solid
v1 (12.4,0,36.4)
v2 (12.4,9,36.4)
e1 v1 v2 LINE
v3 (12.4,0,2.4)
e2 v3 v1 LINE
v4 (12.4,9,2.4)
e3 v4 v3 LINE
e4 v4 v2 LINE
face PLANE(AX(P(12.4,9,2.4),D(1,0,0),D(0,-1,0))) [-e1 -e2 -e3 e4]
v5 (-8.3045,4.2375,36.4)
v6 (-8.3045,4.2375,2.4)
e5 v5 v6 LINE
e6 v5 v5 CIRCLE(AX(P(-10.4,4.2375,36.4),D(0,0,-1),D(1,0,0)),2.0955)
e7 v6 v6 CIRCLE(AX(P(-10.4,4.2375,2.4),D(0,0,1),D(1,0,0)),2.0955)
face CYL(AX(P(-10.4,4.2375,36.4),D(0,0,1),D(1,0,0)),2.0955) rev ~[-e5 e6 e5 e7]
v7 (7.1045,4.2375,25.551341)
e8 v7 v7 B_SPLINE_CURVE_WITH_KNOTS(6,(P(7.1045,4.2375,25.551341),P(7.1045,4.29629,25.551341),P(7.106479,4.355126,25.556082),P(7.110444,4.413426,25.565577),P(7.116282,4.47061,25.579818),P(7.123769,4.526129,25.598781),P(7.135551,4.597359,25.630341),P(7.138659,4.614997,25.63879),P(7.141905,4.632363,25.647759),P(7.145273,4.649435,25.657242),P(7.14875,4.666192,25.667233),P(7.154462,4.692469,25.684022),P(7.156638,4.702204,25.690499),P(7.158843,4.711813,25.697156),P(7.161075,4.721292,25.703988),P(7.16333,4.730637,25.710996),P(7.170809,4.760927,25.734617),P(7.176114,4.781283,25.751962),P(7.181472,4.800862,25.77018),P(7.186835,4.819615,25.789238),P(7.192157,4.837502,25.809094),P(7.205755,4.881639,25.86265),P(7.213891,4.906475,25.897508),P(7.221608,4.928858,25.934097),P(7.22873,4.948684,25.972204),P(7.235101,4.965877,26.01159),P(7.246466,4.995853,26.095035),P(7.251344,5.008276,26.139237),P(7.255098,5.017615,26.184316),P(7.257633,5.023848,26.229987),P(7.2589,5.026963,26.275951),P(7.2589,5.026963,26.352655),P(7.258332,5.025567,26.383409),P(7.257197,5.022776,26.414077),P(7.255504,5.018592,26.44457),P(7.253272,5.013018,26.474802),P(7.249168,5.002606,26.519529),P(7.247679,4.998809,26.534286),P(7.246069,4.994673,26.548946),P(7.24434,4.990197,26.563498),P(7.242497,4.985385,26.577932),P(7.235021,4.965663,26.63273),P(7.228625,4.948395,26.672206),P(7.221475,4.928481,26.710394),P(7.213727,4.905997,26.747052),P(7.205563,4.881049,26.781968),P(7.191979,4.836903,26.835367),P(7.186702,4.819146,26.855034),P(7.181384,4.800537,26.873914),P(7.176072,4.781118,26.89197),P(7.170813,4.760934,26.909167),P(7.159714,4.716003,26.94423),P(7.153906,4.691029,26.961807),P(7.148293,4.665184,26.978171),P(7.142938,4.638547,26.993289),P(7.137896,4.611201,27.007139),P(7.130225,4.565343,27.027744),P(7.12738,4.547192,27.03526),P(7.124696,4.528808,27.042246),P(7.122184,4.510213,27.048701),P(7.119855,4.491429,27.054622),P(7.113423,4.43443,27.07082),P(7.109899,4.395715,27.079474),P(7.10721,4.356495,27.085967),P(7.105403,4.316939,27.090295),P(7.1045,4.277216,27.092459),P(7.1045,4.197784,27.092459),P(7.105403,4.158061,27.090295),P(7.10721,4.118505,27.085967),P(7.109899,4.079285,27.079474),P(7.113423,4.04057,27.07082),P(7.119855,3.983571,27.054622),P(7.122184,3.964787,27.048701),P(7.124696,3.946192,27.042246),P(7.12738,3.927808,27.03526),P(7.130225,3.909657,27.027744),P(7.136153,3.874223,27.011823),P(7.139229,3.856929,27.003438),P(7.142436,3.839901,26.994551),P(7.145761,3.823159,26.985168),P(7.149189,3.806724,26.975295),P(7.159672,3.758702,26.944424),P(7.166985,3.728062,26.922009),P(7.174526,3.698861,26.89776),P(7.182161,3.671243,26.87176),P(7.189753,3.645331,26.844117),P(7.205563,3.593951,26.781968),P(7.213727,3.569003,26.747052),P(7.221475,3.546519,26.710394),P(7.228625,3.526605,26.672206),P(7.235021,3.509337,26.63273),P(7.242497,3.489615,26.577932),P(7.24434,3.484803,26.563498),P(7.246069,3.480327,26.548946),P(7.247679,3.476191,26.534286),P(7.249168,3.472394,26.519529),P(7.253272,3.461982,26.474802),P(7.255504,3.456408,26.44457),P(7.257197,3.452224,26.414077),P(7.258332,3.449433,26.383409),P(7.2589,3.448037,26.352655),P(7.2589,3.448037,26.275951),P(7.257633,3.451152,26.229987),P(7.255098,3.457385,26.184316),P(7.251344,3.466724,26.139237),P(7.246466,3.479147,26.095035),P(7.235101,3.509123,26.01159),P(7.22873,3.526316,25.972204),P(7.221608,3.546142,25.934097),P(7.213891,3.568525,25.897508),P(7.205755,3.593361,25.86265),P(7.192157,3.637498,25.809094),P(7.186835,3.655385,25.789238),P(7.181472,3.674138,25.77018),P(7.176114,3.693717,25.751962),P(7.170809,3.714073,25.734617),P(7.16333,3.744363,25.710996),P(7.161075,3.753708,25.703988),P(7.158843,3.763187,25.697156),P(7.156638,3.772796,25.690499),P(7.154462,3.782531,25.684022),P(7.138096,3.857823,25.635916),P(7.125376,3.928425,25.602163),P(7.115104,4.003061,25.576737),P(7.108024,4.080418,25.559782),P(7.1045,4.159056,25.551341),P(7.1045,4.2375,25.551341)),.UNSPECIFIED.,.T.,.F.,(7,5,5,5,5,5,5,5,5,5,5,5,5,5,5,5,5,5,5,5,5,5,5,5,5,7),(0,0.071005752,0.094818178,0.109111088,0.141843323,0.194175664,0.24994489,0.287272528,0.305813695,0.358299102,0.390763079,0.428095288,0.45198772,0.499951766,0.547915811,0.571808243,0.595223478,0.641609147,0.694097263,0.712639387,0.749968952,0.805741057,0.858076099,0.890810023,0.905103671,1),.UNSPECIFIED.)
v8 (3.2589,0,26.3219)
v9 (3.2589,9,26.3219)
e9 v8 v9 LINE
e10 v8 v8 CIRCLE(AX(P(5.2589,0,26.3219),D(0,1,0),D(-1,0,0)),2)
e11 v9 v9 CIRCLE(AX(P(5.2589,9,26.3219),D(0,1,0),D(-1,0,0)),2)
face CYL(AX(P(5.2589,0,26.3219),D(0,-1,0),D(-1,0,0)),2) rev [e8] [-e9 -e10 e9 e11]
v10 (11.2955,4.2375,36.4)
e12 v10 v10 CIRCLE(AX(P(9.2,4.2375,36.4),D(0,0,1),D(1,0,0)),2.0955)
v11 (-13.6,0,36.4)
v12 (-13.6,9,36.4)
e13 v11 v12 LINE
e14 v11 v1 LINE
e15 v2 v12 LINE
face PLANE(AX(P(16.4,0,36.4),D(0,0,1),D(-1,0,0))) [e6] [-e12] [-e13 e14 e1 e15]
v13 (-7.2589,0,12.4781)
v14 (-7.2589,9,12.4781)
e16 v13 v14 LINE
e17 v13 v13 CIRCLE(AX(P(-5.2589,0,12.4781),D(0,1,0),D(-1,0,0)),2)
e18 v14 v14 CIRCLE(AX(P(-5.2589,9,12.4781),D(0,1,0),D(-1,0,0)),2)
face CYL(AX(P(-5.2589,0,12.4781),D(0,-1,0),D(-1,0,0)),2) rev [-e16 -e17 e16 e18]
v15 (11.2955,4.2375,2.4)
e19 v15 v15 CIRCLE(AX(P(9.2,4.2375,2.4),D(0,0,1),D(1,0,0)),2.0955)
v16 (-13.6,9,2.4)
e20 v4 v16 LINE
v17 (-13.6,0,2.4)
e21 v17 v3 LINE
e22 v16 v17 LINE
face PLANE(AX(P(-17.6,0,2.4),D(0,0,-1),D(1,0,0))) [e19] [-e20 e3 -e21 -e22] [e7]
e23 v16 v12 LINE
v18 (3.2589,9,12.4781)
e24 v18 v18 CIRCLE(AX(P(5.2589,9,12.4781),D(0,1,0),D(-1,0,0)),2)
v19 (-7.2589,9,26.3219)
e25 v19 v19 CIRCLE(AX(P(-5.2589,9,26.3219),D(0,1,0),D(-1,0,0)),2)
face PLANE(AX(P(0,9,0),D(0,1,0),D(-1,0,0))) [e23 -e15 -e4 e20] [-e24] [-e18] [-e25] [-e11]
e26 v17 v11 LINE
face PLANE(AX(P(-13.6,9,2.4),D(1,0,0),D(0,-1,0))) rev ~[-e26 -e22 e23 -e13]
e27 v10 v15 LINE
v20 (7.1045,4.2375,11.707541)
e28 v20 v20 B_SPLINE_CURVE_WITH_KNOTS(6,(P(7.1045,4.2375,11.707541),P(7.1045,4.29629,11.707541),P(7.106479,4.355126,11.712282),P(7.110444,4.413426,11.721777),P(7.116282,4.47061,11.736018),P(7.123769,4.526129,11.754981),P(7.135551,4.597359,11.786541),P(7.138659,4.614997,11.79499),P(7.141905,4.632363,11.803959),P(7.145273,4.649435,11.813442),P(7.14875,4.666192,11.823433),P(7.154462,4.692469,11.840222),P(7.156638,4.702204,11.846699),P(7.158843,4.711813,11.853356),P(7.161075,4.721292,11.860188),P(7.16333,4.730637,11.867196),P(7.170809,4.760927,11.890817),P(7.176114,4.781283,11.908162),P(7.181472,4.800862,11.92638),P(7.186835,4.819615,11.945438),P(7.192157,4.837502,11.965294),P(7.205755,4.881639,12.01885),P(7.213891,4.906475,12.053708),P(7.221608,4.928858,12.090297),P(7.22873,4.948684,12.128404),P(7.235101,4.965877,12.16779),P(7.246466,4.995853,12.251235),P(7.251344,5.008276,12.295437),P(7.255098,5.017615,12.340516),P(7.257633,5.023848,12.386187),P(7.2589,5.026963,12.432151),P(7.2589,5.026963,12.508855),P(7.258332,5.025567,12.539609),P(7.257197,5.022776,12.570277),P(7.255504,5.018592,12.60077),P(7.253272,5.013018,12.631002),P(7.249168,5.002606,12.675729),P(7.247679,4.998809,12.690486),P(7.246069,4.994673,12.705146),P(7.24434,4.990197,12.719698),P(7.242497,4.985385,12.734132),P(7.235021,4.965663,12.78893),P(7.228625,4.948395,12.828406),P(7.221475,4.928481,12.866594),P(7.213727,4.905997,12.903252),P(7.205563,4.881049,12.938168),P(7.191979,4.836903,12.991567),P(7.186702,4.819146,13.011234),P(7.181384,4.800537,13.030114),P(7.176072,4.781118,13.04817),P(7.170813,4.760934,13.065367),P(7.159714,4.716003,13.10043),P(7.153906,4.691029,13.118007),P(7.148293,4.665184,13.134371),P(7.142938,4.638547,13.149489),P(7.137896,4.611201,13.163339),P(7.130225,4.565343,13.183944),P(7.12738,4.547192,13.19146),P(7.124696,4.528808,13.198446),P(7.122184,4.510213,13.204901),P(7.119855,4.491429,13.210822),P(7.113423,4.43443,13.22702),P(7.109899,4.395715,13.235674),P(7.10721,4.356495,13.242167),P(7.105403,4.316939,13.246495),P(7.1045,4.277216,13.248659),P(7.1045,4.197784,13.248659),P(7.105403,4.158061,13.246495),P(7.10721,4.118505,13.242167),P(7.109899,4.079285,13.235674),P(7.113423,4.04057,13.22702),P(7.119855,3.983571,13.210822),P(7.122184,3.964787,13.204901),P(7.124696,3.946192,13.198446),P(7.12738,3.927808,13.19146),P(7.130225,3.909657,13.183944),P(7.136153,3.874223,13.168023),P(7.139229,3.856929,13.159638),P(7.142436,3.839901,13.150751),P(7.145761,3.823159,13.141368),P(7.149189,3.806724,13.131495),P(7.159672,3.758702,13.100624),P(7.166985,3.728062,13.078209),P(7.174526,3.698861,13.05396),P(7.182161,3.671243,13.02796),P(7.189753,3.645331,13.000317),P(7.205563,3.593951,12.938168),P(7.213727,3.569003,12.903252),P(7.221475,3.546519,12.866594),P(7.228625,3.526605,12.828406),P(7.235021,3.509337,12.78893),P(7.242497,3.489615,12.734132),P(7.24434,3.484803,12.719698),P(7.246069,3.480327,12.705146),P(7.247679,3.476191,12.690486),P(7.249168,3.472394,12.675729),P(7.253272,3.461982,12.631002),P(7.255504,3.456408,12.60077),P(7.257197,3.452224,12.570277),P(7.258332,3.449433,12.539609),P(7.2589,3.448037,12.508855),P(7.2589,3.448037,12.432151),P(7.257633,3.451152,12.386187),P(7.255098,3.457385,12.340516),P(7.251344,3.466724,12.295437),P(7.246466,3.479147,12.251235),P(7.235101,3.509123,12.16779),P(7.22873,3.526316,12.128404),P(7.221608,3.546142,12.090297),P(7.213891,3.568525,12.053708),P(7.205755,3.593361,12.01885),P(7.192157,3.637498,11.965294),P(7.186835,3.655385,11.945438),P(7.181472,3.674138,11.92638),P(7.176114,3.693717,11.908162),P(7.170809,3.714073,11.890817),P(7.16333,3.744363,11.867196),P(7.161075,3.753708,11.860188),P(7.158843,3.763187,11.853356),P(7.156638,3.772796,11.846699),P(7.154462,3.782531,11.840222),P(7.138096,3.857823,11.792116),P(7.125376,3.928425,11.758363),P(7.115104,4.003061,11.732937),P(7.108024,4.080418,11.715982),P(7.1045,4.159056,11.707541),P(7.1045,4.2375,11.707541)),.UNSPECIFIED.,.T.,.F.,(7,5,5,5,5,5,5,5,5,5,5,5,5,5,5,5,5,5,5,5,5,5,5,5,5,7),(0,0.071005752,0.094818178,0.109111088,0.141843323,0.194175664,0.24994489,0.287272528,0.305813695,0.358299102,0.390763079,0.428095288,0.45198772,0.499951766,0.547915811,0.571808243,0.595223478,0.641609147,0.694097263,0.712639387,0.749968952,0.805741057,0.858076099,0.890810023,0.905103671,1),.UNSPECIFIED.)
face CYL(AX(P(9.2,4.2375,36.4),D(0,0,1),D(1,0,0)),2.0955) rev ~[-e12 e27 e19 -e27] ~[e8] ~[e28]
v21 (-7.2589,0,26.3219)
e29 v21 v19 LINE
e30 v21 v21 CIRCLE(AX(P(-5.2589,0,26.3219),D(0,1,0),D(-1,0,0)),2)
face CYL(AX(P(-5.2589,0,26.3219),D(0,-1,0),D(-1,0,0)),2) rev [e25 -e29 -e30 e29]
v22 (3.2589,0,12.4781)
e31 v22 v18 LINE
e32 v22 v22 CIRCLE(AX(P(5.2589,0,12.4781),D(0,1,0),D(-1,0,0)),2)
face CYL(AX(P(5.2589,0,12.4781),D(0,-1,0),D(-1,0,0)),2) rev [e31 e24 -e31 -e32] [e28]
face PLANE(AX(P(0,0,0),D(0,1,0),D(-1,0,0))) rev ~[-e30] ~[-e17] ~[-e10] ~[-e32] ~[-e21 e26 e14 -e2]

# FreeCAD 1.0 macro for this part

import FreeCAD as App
import Part
import Sketcher
from FreeCAD import Vector
Q = App.Units.Quantity


def add_polygon(sketch, points):
    """Adds a closed chain of lines whose ends are joined by coincident constraints."""
    first, n = sketch.GeometryCount, len(points)
    for a, b in zip(points, points[1:] + points[:1]):
        sketch.addGeometry(Part.LineSegment(App.Vector(*a, 0), App.Vector(*b, 0)), False)
    for i in range(n):
        sketch.addConstraint(Sketcher.Constraint("Coincident", first + i, 2, first + (i + 1) % n, 1))

doc = App.newDocument("Part")
params = doc.addObject("Spreadsheet::Sheet", "Params")
for row, (alias, value) in enumerate([
    ("sketch1_diameter", "4 mm"),
    ("sketch1_width", "34 mm"),
    ("pad1_length", "9 mm"),
    ("sketch4_width", "4 mm"),
    ("sketch4_height", "9 mm"),
    ("sketch5_width", "4 mm"),
    ("sketch5_height", "9 mm"),
], start=1):
    params.set(f"A{row}", alias)
    params.set(f"B{row}", "=" + value)
    params.setAlias(f"B{row}", alias)

body = doc.addObject("PartDesign::Body", "Body")

sketch1 = doc.addObject("Sketcher::SketchObject", "Sketch")
body.addObject(sketch1)
sketch1.AttachmentSupport = (doc.XZ_Plane, [""])
sketch1.MapMode = "FlatFace"
add_polygon(sketch1, [(-17.6, 36.4), (16.4, 36.4), (16.4, 2.4), (-17.6, 2.4)])
sketch1.addGeometry(Part.Circle(Vector(5.3, 12.5, 0), Vector(0, 0, 1), 2), False)
sketch1.addGeometry(Part.Circle(Vector(-5.3, 12.5, 0), Vector(0, 0, 1), 2), False)
sketch1.addGeometry(Part.Circle(Vector(5.3, 26.3, 0), Vector(0, 0, 1), 2), False)
sketch1.addGeometry(Part.Circle(Vector(-5.3, 26.3, 0), Vector(0, 0, 1), 2), False)
sketch1.addConstraint([
    Sketcher.Constraint("Horizontal", 0),
    Sketcher.Constraint("Vertical", 1),
    Sketcher.Constraint("Horizontal", 2),
    Sketcher.Constraint("Vertical", 3),
    Sketcher.Constraint("Equal", 4, 5),
    Sketcher.Constraint("Equal", 5, 6),
    Sketcher.Constraint("Equal", 6, 7),
    Sketcher.Constraint("Symmetric", 4, 3, 5, 3, -2),
    Sketcher.Constraint("Symmetric", 6, 3, 7, 3, -2),
    Sketcher.Constraint("Vertical", 4, 3, 6, 3),
    Sketcher.Constraint("Equal", 2, 1),
    Sketcher.Constraint("Diameter", 4, Q("4 mm")),
    Sketcher.Constraint("DistanceX", 0, 1, 0, 2, Q("34 mm")),
    Sketcher.Constraint("DistanceX", -1, 1, 0, 2, Q("16.4 mm")),
    Sketcher.Constraint("DistanceY", -1, 1, 0, 2, Q("36.4 mm")),
    Sketcher.Constraint("DistanceX", -1, 1, 4, 3, Q("5.259 mm")),
    Sketcher.Constraint("DistanceY", -1, 1, 4, 3, Q("12.478 mm")),
    Sketcher.Constraint("DistanceY", -1, 1, 6, 3, Q("26.322 mm")),
])
sketch1.setExpression("Constraints[15]", "Params.sketch1_diameter")
sketch1.setExpression("Constraints[16]", "Params.sketch1_width")
pad1 = doc.addObject("PartDesign::Pad", "Pad")
body.addObject(pad1)
pad1.Profile = sketch1
pad1.setExpression("Length", "Params.pad1_length")
pad1.Reversed = True

sketch2 = doc.addObject("Sketcher::SketchObject", "Sketch001")
body.addObject(sketch2)
sketch2.AttachmentSupport = (doc.XY_Plane, [""])
sketch2.MapMode = "FlatFace"
sketch2.AttachmentOffset = App.Placement(Vector(0, 0, 36.4), App.Rotation())
sketch2.addGeometry(Part.Circle(Vector(-10.4, 4.2, 0), Vector(0, 0, 1), 2.1), False)
sketch2.addConstraint([
    Sketcher.Constraint("Diameter", 0, Q("4.191 mm")),
    Sketcher.Constraint("DistanceX", 0, 3, -1, 1, Q("10.4 mm")),
    Sketcher.Constraint("DistanceY", -1, 1, 0, 3, Q("4.2375 mm")),
])
pocket1 = doc.addObject("PartDesign::Pocket", "Pocket")
body.addObject(pocket1)
pocket1.Profile = sketch2
pocket1.Type = "UpToFirst"

sketch3 = doc.addObject("Sketcher::SketchObject", "Sketch002")
body.addObject(sketch3)
sketch3.AttachmentSupport = (doc.XY_Plane, [""])
sketch3.MapMode = "FlatFace"
sketch3.AttachmentOffset = App.Placement(Vector(0, 0, 36.4), App.Rotation())
sketch3.addGeometry(Part.Circle(Vector(9.2, 4.2, 0), Vector(0, 0, 1), 2.1), False)
sketch3.addConstraint([
    Sketcher.Constraint("Diameter", 0, Q("4.191 mm")),
    Sketcher.Constraint("DistanceX", -1, 1, 0, 3, Q("9.2 mm")),
    Sketcher.Constraint("DistanceY", -1, 1, 0, 3, Q("4.2375 mm")),
])
pocket2 = doc.addObject("PartDesign::Pocket", "Pocket001")
body.addObject(pocket2)
pocket2.Profile = sketch3
pocket2.Type = "UpToFirst"

sketch4 = doc.addObject("Sketcher::SketchObject", "Sketch003")
body.addObject(sketch4)
sketch4.AttachmentSupport = (doc.XY_Plane, [""])
sketch4.MapMode = "FlatFace"
sketch4.AttachmentOffset = App.Placement(Vector(0, 0, 2.4), App.Rotation())
add_polygon(sketch4, [(16.4, 9), (16.4, 0), (12.4, 0), (12.4, 9)])
sketch4.addConstraint([
    Sketcher.Constraint("Vertical", 0),
    Sketcher.Constraint("Horizontal", 1),
    Sketcher.Constraint("Vertical", 2),
    Sketcher.Constraint("Horizontal", 3),
    Sketcher.Constraint("PointOnObject", 0, 2, -1),
    Sketcher.Constraint("DistanceX", 1, 2, 1, 1, Q("4 mm")),
    Sketcher.Constraint("DistanceY", 0, 2, 0, 1, Q("9 mm")),
    Sketcher.Constraint("DistanceX", -1, 1, 0, 2, Q("16.4 mm")),
])
sketch4.setExpression("Constraints[9]", "Params.sketch4_width")
sketch4.setExpression("Constraints[10]", "Params.sketch4_height")
pocket3 = doc.addObject("PartDesign::Pocket", "Pocket002")
body.addObject(pocket3)
pocket3.Profile = sketch4
pocket3.Type = "ThroughAll"
pocket3.Reversed = True

sketch5 = doc.addObject("Sketcher::SketchObject", "Sketch004")
body.addObject(sketch5)
sketch5.AttachmentSupport = (doc.XY_Plane, [""])
sketch5.MapMode = "FlatFace"
sketch5.AttachmentOffset = App.Placement(Vector(0, 0, 2.4), App.Rotation())
add_polygon(sketch5, [(-13.6, 9), (-13.6, 0), (-17.6, 0), (-17.6, 9)])
sketch5.addConstraint([
    Sketcher.Constraint("Vertical", 0),
    Sketcher.Constraint("Horizontal", 1),
    Sketcher.Constraint("Vertical", 2),
    Sketcher.Constraint("Horizontal", 3),
    Sketcher.Constraint("PointOnObject", 0, 2, -1),
    Sketcher.Constraint("DistanceX", 1, 2, 1, 1, Q("4 mm")),
    Sketcher.Constraint("DistanceY", 0, 2, 0, 1, Q("9 mm")),
    Sketcher.Constraint("DistanceX", 0, 2, -1, 1, Q("13.6 mm")),
])
sketch5.setExpression("Constraints[9]", "Params.sketch5_width")
sketch5.setExpression("Constraints[10]", "Params.sketch5_height")
pocket4 = doc.addObject("PartDesign::Pocket", "Pocket003")
body.addObject(pocket4)
pocket4.Profile = sketch5
pocket4.Type = "ThroughAll"
pocket4.Reversed = True

doc.recompute()
